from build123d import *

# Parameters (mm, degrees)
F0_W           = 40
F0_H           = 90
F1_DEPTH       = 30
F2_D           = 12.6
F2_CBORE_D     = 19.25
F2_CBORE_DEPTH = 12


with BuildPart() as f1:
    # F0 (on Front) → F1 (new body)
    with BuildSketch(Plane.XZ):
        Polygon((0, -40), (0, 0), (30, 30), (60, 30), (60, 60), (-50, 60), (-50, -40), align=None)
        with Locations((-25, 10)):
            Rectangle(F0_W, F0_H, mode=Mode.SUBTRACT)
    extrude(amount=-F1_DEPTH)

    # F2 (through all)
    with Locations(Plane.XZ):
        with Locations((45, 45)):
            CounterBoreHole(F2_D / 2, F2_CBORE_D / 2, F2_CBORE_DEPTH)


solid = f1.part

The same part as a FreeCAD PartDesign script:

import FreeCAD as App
import Part
import Sketcher

V = App.Vector
Q = App.Units.Quantity


def add_polygon(sketch, points):
    """Adds a closed chain of lines whose ends are joined by coincident constraints."""
    first, n = sketch.GeometryCount, len(points)
    for a, b in zip(points, points[1:] + points[:1]):
        sketch.addGeometry(Part.LineSegment(App.Vector(*a, 0), App.Vector(*b, 0)), False)
    for i in range(n):
        sketch.addConstraint(Sketcher.Constraint("Coincident", first + i, 2, first + (i + 1) % n, 1))

doc = App.newDocument("Part")
body = doc.addObject("PartDesign::Body", "Body")

sketch1 = body.newObject("Sketcher::SketchObject", "Sketch")
sketch1.AttachmentSupport = (doc.getObject("XZ_Plane"), [""])
sketch1.MapMode = "FlatFace"
add_polygon(sketch1, [(0, -40), (0, 0), (30, 30), (60, 30), (60, 60), (-50, 60), (-50, -40)])
add_polygon(sketch1, [(-5, -35), (-45, -35), (-45, 55), (-5, 55)])
sketch1.addConstraint([
    Sketcher.Constraint("Vertical", 0),
    Sketcher.Constraint("Horizontal", 2),
    Sketcher.Constraint("Vertical", 3),
    Sketcher.Constraint("Horizontal", 4),
    Sketcher.Constraint("Vertical", 5),
    Sketcher.Constraint("Horizontal", 6),
    Sketcher.Constraint("Horizontal", 7),
    Sketcher.Constraint("Vertical", 8),
    Sketcher.Constraint("Horizontal", 9),
    Sketcher.Constraint("Vertical", 10),
    Sketcher.Constraint("Coincident", 0, 2, -1, 1),
    Sketcher.Constraint("Equal", 9, 0),
    Sketcher.Constraint("Equal", 2, 3),
    Sketcher.Constraint("DistanceX", 2, 1, 2, 2, Q("30 mm")),
    Sketcher.Constraint("DistanceX", 4, 2, 4, 1, Q("110 mm")),
    Sketcher.Constraint("DistanceX", 6, 1, 6, 2, Q("50 mm")),
    Sketcher.Constraint("DistanceX", 7, 2, 7, 1, Q("40 mm")),
    Sketcher.Constraint("DistanceY", 5, 2, 5, 1, Q("100 mm")),
    Sketcher.Constraint("DistanceY", 8, 1, 8, 2, Q("90 mm")),
    Sketcher.Constraint("DistanceX", 7, 2, -1, 1, Q("45 mm")),
    Sketcher.Constraint("DistanceY", 7, 2, -1, 1, Q("35 mm")),
])
pad1 = body.newObject("PartDesign::Pad", "Pad")
pad1.Profile = sketch1
pad1.Length = 30
pad1.Reversed = True

sketch2 = body.newObject("Sketcher::SketchObject", "Sketch001")
sketch2.AttachmentSupport = (doc.getObject("XZ_Plane"), [""])
sketch2.MapMode = "FlatFace"
sketch2.addGeometry(Part.Circle(V(45, 45, 0), V(0, 0, 1), 6), False)
sketch2.addConstraint([
    Sketcher.Constraint("Diameter", 0, Q("12.6 mm")),
    Sketcher.Constraint("DistanceX", -1, 1, 0, 3, Q("45 mm")),
    Sketcher.Constraint("DistanceY", -1, 1, 0, 3, Q("45 mm")),
])
doc.recompute()
hole = body.newObject("PartDesign::Hole", "Hole")
hole.Profile = sketch2
hole.ThreadType = "None"
hole.Diameter = 12.6
hole.DepthType = "ThroughAll"
hole.HoleCutType = "Counterbore"
hole.HoleCutDiameter = 19.25
hole.HoleCutDepth = 12

doc.recompute()
